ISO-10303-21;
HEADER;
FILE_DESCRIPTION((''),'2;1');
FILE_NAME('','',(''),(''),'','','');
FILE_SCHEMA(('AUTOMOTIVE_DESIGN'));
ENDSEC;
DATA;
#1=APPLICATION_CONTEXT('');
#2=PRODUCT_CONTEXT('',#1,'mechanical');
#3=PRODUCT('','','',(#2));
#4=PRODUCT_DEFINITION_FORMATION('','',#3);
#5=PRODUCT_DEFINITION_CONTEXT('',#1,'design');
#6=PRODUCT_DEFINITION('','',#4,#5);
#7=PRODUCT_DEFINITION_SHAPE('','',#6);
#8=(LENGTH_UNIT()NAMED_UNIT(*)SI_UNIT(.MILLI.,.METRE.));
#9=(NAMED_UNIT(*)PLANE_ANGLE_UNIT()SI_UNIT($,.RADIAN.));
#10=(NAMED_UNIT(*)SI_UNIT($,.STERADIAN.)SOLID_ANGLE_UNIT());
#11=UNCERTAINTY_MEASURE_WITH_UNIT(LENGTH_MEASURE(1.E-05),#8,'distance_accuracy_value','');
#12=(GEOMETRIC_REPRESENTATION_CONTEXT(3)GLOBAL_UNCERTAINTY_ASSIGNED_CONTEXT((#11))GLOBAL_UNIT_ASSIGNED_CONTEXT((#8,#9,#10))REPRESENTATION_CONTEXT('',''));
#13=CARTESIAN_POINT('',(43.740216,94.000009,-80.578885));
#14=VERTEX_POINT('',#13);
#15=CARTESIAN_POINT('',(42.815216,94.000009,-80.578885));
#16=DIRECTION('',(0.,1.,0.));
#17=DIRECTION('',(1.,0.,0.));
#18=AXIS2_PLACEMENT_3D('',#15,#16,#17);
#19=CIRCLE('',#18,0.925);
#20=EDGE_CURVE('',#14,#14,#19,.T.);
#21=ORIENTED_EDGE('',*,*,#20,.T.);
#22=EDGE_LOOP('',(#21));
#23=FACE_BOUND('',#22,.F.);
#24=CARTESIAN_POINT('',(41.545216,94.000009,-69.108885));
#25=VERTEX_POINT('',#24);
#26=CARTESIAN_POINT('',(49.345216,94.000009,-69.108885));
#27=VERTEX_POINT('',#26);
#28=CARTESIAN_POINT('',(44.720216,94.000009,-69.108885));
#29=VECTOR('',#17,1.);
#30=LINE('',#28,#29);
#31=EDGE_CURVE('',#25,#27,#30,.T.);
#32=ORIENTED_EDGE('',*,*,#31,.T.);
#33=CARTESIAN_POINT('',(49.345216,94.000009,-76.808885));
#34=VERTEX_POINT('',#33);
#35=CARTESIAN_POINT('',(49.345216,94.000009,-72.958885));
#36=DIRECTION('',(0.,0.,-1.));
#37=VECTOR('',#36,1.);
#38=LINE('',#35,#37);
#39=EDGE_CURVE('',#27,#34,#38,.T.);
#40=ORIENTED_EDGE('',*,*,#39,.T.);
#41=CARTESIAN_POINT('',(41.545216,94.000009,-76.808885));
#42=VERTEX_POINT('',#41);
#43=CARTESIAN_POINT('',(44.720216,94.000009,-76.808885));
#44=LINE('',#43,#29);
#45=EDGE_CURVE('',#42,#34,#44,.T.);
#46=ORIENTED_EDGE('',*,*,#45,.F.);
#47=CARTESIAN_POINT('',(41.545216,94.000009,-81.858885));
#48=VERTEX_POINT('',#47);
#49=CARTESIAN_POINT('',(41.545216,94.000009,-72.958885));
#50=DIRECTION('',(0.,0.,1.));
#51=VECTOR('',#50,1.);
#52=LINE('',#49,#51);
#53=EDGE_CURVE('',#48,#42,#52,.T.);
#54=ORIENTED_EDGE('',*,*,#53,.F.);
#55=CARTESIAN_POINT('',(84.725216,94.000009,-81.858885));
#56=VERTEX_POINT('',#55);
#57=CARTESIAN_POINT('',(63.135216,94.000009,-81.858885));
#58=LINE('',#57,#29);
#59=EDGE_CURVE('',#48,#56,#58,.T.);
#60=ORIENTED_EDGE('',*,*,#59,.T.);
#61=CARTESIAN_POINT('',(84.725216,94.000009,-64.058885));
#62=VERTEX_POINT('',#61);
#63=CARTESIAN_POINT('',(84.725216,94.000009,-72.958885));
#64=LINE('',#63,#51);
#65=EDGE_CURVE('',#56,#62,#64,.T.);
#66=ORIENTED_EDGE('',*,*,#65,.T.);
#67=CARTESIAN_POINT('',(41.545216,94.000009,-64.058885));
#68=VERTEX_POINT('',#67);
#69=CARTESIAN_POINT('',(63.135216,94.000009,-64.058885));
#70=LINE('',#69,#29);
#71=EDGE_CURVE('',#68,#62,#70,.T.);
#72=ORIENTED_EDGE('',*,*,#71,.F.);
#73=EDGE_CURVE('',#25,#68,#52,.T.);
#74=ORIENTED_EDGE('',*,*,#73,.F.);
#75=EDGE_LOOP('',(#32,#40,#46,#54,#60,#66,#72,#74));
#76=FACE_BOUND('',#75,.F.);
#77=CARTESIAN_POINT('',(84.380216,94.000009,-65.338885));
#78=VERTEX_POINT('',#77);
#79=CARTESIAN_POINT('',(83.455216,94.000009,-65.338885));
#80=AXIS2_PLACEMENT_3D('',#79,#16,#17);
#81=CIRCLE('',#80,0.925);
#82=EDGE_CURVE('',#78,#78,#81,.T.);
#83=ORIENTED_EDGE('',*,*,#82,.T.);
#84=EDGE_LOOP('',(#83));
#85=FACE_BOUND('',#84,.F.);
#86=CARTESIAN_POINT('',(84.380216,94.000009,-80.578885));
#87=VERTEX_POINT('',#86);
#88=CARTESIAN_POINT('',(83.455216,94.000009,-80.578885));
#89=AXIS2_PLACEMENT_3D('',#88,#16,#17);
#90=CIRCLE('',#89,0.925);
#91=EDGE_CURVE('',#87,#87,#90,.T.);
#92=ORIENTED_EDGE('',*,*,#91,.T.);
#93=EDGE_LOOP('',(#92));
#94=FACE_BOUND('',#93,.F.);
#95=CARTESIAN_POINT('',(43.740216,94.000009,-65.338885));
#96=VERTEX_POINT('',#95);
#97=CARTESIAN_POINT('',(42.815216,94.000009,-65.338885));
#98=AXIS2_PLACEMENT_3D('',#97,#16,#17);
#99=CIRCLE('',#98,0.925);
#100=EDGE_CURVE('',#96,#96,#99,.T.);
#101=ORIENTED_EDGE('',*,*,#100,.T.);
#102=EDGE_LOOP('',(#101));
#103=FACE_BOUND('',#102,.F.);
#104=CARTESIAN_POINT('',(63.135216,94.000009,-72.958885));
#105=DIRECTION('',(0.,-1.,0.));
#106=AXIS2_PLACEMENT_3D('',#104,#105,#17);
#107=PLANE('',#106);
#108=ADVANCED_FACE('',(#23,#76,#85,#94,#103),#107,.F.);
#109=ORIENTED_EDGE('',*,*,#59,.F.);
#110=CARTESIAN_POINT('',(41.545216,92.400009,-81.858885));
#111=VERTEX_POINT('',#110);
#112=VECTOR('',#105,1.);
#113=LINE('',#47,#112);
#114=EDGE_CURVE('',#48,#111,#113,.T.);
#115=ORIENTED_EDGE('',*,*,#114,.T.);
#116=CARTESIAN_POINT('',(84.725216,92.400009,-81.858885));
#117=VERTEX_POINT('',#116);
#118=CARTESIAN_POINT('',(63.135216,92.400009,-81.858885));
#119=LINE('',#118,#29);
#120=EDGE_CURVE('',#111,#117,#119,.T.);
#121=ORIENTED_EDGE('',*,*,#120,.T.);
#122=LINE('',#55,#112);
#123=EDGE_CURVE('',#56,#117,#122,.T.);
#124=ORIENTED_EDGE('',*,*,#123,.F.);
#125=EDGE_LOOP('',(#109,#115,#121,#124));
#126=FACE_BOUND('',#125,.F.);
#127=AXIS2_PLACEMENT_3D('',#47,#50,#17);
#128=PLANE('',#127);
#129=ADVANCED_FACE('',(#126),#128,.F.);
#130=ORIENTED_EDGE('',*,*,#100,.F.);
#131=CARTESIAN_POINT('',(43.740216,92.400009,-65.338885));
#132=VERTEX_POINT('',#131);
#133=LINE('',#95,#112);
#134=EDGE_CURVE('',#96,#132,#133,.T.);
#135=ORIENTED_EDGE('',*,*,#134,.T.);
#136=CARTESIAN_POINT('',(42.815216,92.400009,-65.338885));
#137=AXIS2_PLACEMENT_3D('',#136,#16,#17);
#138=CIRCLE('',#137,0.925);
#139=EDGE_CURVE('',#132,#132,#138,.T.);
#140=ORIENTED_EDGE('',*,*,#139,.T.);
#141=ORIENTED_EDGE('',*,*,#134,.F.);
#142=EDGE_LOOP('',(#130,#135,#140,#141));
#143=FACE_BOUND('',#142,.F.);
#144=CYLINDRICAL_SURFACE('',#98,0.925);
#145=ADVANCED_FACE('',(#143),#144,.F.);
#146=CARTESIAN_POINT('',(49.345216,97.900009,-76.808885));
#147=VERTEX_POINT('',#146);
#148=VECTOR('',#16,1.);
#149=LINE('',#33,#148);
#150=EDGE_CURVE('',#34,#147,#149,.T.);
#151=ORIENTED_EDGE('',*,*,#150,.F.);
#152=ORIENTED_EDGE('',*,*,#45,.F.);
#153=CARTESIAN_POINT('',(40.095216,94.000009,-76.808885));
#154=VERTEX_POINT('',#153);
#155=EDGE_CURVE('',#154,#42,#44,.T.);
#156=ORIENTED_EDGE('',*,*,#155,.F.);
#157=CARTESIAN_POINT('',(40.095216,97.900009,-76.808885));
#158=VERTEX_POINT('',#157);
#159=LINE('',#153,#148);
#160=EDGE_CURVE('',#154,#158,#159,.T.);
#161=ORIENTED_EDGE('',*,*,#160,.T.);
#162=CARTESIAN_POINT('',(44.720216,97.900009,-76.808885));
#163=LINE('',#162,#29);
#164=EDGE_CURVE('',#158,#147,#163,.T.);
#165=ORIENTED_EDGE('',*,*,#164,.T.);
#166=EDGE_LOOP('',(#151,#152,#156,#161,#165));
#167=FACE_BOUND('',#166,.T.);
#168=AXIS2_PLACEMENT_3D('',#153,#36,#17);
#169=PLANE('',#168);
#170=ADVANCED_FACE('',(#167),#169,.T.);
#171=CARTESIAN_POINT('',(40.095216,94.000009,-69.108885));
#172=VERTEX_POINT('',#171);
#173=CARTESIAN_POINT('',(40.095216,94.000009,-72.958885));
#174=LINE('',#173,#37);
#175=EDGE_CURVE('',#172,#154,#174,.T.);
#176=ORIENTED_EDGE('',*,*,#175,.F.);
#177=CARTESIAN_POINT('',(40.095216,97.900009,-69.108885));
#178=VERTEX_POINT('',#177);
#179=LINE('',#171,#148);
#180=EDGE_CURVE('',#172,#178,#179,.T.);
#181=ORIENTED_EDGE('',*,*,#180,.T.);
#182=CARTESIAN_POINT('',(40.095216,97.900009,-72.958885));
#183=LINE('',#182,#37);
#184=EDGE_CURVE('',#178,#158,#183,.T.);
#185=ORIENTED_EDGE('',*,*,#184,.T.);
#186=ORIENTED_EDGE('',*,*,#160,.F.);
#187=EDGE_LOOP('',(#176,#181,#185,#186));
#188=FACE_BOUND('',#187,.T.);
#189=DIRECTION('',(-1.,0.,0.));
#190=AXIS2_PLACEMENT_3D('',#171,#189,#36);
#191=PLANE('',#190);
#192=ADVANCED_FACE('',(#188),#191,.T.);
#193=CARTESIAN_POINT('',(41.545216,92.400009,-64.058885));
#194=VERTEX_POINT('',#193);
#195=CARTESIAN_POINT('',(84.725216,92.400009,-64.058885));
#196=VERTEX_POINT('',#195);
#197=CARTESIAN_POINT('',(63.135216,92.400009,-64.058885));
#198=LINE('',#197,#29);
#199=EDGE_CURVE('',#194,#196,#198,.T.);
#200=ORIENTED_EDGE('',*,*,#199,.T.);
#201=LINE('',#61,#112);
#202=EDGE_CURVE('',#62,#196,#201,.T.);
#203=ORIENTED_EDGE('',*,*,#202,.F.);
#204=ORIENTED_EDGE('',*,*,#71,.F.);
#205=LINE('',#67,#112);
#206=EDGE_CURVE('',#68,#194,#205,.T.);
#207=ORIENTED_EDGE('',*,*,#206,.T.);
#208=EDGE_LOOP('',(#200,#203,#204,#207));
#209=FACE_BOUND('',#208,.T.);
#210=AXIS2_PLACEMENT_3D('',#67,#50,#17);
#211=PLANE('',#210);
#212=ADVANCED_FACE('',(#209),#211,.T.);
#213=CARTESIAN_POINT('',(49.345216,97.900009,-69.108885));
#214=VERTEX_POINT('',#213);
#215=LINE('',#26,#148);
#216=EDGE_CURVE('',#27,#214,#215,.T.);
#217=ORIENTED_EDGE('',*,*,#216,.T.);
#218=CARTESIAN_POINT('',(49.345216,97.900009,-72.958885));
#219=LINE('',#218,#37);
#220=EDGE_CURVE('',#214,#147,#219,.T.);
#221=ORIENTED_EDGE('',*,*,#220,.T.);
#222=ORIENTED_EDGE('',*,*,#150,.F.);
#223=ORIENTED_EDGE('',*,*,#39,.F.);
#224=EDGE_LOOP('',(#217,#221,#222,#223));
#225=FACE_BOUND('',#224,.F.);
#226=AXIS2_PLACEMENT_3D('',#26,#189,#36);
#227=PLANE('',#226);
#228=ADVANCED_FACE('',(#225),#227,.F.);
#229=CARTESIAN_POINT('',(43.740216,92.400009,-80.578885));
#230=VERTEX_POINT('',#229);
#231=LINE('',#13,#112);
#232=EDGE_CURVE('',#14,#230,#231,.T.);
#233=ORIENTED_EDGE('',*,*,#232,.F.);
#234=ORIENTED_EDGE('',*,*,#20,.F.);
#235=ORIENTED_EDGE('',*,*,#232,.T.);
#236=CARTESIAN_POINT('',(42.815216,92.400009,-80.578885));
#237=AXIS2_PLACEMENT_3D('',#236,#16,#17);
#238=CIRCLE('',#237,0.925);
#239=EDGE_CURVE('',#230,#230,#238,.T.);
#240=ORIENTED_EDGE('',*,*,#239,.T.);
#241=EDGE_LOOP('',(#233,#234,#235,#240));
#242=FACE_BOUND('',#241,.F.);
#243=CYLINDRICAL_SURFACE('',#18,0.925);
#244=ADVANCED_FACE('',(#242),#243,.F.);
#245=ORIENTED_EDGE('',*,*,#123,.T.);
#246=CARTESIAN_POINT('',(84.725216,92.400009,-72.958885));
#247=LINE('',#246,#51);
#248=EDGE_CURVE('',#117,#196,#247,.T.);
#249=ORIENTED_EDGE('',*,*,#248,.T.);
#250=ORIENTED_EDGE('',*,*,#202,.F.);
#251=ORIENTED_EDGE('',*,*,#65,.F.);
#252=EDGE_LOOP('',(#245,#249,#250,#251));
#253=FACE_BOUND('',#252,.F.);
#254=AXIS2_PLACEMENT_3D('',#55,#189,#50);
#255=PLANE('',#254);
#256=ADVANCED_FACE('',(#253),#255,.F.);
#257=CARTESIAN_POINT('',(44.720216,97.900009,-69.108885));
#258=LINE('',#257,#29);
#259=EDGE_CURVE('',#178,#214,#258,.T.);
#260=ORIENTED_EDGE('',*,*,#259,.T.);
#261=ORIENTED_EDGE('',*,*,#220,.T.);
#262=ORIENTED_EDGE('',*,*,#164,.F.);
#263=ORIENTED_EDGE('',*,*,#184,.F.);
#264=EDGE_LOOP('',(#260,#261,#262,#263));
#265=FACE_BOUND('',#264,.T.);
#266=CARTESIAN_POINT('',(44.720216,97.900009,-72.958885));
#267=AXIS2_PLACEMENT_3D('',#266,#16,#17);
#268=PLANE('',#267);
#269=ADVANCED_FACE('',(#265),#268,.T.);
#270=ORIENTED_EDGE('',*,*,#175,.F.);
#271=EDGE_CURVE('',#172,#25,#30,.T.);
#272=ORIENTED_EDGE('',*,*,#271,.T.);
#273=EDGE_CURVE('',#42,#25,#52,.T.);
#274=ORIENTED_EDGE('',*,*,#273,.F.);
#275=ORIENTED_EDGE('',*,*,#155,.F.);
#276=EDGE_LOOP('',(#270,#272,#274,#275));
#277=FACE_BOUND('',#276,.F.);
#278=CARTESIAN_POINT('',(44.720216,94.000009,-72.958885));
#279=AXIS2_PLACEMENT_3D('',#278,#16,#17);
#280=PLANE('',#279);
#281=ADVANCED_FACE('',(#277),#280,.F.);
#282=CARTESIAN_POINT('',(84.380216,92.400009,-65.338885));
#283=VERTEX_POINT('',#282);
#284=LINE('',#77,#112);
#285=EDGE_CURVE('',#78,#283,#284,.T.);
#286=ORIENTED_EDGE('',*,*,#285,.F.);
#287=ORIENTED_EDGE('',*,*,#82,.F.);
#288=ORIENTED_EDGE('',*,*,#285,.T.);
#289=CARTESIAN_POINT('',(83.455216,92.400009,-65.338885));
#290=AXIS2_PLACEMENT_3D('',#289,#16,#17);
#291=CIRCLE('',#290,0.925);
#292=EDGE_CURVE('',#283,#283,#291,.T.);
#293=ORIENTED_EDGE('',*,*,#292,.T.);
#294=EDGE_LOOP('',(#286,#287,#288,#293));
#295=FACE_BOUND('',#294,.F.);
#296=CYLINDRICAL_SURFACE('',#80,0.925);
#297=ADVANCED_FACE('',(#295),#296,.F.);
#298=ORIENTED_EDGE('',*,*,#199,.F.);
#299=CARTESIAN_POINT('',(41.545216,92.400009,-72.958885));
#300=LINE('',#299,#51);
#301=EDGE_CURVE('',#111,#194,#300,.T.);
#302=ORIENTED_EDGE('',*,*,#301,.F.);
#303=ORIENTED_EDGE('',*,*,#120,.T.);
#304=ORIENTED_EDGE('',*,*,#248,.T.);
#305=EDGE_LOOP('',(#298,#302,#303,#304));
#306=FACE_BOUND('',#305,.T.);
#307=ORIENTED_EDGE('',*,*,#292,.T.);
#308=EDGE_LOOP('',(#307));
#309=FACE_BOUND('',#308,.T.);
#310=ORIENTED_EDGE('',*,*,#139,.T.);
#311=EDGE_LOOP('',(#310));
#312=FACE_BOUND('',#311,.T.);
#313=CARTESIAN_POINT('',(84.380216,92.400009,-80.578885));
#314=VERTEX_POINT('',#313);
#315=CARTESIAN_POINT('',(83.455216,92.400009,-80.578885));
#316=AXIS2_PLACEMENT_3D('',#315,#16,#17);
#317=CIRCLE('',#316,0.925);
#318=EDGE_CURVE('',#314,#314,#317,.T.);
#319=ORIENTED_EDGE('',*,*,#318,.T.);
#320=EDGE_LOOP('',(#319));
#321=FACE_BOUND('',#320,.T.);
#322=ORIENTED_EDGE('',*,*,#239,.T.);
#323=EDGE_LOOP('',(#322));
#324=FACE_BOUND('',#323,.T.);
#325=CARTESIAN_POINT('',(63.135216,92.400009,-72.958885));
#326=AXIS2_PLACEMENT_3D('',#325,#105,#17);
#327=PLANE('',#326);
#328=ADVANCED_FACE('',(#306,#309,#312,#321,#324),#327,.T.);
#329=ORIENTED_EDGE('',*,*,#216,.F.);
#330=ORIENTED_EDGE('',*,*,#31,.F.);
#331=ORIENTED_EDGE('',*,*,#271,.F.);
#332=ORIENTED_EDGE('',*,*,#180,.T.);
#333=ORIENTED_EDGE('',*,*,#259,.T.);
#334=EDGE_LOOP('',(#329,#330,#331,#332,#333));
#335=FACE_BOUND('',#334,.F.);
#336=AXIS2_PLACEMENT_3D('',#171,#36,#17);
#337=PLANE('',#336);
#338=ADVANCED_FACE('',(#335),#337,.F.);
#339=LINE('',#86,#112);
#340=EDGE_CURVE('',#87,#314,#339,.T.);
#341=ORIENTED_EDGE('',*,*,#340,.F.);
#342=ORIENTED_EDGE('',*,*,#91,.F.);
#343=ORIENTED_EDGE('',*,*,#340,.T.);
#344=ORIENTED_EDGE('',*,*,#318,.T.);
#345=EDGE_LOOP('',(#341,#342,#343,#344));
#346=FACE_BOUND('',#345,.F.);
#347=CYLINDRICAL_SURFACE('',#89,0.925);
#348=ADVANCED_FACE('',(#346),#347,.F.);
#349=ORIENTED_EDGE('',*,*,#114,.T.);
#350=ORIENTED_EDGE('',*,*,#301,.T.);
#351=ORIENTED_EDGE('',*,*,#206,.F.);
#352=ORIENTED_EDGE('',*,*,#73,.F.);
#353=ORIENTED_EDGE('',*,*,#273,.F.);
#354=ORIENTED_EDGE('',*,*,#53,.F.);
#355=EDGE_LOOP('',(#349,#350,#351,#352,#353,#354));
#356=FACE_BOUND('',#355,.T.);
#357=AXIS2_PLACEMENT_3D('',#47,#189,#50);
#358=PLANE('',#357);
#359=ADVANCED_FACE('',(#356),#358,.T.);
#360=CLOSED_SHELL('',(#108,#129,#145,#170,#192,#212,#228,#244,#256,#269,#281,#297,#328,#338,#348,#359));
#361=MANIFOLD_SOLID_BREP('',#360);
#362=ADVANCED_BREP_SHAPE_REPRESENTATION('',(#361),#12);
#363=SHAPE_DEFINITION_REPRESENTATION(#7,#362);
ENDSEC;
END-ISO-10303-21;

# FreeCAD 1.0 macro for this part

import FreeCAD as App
import Part
import Sketcher

V = App.Vector

doc = App.newDocument("Part")
body = doc.addObject("PartDesign::Body", "Body")

# Sketch on XZ plane
sketch1 = doc.addObject("Sketcher::SketchObject", "Sketch")
body.addObject(sketch1)
sketch1.AttachmentSupport = (doc.XZ_Plane, [""])
sketch1.MapMode = "FlatFace"
sketch1.addGeometry(Part.LineSegment(V(0, 18, 0), V(0, 0, 0)), False)
sketch1.addGeometry(Part.LineSegment(V(0, 0, 0), V(43, 0, 0)), False)
sketch1.addGeometry(Part.LineSegment(V(43, 0, 0), V(43, 18, 0)), False)
sketch1.addGeometry(Part.LineSegment(V(43, 18, 0), V(0, 18, 0)), False)
sketch1.addConstraint(Sketcher.Constraint("Coincident", 0, 2, 1, 1))
sketch1.addConstraint(Sketcher.Constraint("Coincident", 1, 2, 2, 1))
sketch1.addConstraint(Sketcher.Constraint("Coincident", 2, 2, 3, 1))
sketch1.addConstraint(Sketcher.Constraint("Coincident", 3, 2, 0, 1))
sketch1.addConstraint(Sketcher.Constraint("Vertical", 0))
sketch1.addConstraint(Sketcher.Constraint("Horizontal", 1))
sketch1.addConstraint(Sketcher.Constraint("Vertical", 2))
sketch1.addConstraint(Sketcher.Constraint("Horizontal", 3))
sketch1.addConstraint(Sketcher.Constraint("Coincident", 0, 2, -1, 1))
sketch1.addConstraint(Sketcher.Constraint("DistanceY", 0, 2, 0, 1, 17.8))
sketch1.addConstraint(Sketcher.Constraint("DistanceX", 1, 1, 1, 2, 43.18))
pad1 = doc.addObject("PartDesign::Pad", "Pad")
body.addObject(pad1)
pad1.Profile = sketch1
pad1.Length = 1.6

# Sketch on XZ plane
sketch2 = doc.addObject("Sketcher::SketchObject", "Sketch001")
body.addObject(sketch2)
sketch2.AttachmentSupport = (doc.XZ_Plane, [""])
sketch2.MapMode = "FlatFace"
sketch2.addGeometry(Part.LineSegment(V(-1, 5, 0), V(-1, 13, 0)), False)
sketch2.addGeometry(Part.LineSegment(V(-1, 13, 0), V(8, 13, 0)), False)
sketch2.addGeometry(Part.LineSegment(V(8, 13, 0), V(8, 5, 0)), False)
sketch2.addGeometry(Part.LineSegment(V(8, 5, 0), V(-1, 5, 0)), False)
sketch2.addConstraint(Sketcher.Constraint("Coincident", 0, 2, 1, 1))
sketch2.addConstraint(Sketcher.Constraint("Coincident", 1, 2, 2, 1))
sketch2.addConstraint(Sketcher.Constraint("Coincident", 2, 2, 3, 1))
sketch2.addConstraint(Sketcher.Constraint("Coincident", 3, 2, 0, 1))
sketch2.addConstraint(Sketcher.Constraint("Vertical", 0))
sketch2.addConstraint(Sketcher.Constraint("Horizontal", 1))
sketch2.addConstraint(Sketcher.Constraint("Vertical", 2))
sketch2.addConstraint(Sketcher.Constraint("Horizontal", 3))
sketch2.addConstraint(Sketcher.Constraint("DistanceY", 0, 1, 0, 2, 7.7))
sketch2.addConstraint(Sketcher.Constraint("DistanceX", 1, 1, 1, 2, 9.25))
sketch2.addConstraint(Sketcher.Constraint("DistanceX", -1, 1, 1, 2, 7.8))
sketch2.addConstraint(Sketcher.Constraint("DistanceY", -1, 1, 0, 2, 12.75))
pad2 = doc.addObject("PartDesign::Pad", "Pad001")
body.addObject(pad2)
pad2.Profile = sketch2
pad2.Length = 3.9
pad2.Reversed = True

# Sketch on XZ plane
sketch3 = doc.addObject("Sketcher::SketchObject", "Sketch002")
body.addObject(sketch3)
sketch3.AttachmentSupport = (doc.XZ_Plane, [""])
sketch3.MapMode = "FlatFace"
sketch3.addGeometry(Part.Circle(V(1.3, 16.5, 0), V(0, 0, 1), 0.9), False)
sketch3.addGeometry(Part.Circle(V(1.3, 1.3, 0), V(0, 0, 1), 0.9), False)
sketch3.addGeometry(Part.Circle(V(41.9, 1.3, 0), V(0, 0, 1), 0.9), False)
sketch3.addGeometry(Part.Circle(V(41.9, 16.5, 0), V(0, 0, 1), 0.9), False)
sketch3.addConstraint(Sketcher.Constraint("Equal", 0, 1))
sketch3.addConstraint(Sketcher.Constraint("Equal", 1, 2))
sketch3.addConstraint(Sketcher.Constraint("Equal", 2, 3))
sketch3.addConstraint(Sketcher.Constraint("Horizontal", 1, 3, 2, 3))
sketch3.addConstraint(Sketcher.Constraint("Horizontal", 0, 3, 3, 3))
sketch3.addConstraint(Sketcher.Constraint("Vertical", 0, 3, 1, 3))
sketch3.addConstraint(Sketcher.Constraint("Vertical", 2, 3, 3, 3))
sketch3.addConstraint(Sketcher.Constraint("Diameter", 0, 1.85))
sketch3.addConstraint(Sketcher.Constraint("DistanceX", -1, 1, 0, 3, 1.27))
sketch3.addConstraint(Sketcher.Constraint("DistanceY", -1, 1, 0, 3, 16.52))
sketch3.addConstraint(Sketcher.Constraint("DistanceY", -1, 1, 1, 3, 1.28))
sketch3.addConstraint(Sketcher.Constraint("DistanceX", -1, 1, 2, 3, 41.91))
pocket1 = doc.addObject("PartDesign::Pocket", "Pocket")
body.addObject(pocket1)
pocket1.Profile = sketch3
pocket1.Length = 5
pocket1.Reversed = True
body2 = doc.addObject("PartDesign::Body", "Body001")
doc.recompute()

body.Placement = App.Placement(V(41.545216, 94.000009, -81.858885), App.Rotation(V(0, 0, 1), 0))
boolean = doc.addObject("PartDesign::Boolean", "Boolean")
body2.addObject(boolean)
boolean.Type = "Fuse"
boolean.addObjects([body])

doc.recompute()
